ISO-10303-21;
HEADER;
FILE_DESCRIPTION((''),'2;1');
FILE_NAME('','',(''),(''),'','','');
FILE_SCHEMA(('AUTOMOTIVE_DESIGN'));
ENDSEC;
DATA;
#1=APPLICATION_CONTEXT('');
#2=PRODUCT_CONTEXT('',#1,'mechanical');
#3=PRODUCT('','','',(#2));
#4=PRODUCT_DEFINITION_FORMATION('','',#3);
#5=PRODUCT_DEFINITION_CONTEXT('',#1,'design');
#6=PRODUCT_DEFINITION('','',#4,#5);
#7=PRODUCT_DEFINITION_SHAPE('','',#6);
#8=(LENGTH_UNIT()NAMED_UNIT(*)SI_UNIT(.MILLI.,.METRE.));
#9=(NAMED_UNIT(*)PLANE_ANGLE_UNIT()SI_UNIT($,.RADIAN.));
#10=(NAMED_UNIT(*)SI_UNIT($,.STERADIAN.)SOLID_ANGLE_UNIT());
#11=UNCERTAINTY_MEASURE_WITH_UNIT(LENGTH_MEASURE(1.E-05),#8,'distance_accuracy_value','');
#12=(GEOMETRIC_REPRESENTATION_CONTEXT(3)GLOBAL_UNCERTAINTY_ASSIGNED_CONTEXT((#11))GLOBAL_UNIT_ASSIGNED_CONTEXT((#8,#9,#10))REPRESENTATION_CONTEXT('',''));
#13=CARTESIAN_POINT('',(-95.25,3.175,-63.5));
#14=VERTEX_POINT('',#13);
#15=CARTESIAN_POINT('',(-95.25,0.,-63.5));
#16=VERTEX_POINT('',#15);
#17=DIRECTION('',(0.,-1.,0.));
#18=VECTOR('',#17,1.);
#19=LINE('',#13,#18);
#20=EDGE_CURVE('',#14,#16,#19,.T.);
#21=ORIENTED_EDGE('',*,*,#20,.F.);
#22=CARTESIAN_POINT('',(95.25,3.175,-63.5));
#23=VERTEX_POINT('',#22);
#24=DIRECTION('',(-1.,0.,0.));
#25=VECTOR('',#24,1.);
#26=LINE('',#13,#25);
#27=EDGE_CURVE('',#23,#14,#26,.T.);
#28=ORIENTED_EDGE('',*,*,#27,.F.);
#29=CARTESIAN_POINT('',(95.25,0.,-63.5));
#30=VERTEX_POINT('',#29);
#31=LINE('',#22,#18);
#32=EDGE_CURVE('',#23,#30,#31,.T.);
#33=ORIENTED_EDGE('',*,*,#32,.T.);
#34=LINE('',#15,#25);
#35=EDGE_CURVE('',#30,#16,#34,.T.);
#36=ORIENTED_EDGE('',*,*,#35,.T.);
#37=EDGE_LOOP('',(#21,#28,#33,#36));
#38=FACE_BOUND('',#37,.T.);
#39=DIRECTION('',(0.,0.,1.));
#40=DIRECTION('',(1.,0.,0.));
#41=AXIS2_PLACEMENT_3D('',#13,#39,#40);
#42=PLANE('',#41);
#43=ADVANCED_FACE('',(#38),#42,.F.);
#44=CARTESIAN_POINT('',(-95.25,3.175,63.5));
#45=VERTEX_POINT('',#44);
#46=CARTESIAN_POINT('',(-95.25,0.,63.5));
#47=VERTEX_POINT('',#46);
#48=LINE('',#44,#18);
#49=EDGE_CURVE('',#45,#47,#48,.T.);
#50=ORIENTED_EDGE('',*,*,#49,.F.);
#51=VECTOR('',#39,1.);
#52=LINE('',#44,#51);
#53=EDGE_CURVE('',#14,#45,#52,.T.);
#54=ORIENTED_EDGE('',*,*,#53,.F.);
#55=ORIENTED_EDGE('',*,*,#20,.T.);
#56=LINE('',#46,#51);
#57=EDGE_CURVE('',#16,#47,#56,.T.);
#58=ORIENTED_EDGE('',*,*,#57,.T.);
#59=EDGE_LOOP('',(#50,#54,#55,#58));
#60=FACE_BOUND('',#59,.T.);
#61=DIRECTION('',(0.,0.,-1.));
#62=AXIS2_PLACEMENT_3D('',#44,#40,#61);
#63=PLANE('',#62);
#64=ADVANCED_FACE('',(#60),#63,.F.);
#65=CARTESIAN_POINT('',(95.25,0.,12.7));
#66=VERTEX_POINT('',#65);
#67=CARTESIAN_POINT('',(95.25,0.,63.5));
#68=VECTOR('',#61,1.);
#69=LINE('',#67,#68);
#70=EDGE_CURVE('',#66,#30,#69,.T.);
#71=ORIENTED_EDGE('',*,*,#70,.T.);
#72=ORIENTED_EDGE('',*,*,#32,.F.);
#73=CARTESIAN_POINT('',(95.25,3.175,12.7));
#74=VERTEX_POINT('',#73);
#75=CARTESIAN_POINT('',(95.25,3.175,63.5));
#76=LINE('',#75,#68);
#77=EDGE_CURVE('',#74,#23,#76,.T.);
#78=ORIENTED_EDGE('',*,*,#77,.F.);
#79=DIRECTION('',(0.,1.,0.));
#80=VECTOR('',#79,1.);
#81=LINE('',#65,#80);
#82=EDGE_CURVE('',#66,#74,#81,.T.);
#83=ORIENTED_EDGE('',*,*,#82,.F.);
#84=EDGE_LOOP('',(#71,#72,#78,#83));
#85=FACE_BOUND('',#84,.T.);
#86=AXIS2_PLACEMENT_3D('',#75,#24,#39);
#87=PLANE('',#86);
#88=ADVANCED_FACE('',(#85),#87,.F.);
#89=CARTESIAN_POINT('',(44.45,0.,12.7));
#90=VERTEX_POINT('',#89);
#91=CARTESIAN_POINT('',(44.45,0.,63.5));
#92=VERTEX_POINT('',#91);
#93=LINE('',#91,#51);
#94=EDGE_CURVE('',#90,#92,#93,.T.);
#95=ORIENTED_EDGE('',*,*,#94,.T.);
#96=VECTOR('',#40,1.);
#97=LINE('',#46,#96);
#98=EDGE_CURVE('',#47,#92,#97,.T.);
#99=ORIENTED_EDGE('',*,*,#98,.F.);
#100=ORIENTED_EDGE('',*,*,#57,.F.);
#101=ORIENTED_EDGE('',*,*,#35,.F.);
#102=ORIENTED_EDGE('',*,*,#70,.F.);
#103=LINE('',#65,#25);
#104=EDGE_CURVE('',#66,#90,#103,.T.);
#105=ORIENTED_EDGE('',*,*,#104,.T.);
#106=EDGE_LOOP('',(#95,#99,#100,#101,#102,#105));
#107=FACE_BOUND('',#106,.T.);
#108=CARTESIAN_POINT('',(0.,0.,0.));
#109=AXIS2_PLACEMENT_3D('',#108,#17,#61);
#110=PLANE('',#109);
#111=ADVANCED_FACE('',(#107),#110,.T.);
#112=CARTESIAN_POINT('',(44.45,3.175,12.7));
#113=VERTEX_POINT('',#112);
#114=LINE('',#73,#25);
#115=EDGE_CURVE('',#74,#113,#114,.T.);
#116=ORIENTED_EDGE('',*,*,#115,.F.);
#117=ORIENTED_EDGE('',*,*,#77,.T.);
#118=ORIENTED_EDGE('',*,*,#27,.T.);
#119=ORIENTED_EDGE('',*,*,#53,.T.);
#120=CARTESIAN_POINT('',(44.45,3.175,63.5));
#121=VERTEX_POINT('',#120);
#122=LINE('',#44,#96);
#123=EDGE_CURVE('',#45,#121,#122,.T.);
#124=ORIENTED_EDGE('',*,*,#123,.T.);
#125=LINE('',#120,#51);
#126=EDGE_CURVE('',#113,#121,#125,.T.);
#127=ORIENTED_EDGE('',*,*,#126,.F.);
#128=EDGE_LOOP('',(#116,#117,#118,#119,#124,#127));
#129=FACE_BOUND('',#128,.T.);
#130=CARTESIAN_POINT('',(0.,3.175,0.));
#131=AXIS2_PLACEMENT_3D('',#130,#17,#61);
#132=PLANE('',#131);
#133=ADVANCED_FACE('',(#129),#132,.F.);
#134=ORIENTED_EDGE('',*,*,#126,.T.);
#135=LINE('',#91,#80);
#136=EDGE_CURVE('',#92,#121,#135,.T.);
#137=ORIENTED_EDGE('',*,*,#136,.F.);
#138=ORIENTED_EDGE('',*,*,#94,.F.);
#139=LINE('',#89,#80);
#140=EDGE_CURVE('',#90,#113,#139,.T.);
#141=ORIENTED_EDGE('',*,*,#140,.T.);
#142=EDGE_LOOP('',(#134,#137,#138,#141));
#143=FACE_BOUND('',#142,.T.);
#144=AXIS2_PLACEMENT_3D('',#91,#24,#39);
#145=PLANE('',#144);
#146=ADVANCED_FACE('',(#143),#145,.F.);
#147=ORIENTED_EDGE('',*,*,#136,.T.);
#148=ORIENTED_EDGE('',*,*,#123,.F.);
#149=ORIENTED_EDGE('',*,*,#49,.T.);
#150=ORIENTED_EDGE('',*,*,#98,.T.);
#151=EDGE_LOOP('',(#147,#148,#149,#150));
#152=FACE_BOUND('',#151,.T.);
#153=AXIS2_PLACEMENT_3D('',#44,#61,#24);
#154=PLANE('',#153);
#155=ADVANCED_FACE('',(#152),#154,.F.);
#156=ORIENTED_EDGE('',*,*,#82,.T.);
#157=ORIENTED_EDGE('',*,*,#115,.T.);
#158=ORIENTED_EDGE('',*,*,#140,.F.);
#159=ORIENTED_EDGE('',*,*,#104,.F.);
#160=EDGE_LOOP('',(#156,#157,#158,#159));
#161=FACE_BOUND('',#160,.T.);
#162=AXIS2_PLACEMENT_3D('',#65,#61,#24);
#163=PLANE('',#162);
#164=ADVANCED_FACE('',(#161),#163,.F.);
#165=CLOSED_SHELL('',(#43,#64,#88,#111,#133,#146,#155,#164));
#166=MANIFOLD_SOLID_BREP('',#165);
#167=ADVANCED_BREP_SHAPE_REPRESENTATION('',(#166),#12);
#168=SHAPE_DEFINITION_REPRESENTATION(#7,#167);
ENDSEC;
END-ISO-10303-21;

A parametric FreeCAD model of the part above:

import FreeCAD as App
import Part
import Sketcher

V = App.Vector
Q = App.Units.Quantity

doc = App.newDocument("Part")
body = doc.addObject("PartDesign::Body", "Body")

# Sketch on XZ plane
sketch1 = body.newObject("Sketcher::SketchObject", "Sketch")
sketch1.AttachmentSupport = (doc.getObject("XZ_Plane"), [""])
sketch1.MapMode = "FlatFace"
sketch1.addGeometry([
    Part.LineSegment(V(-95, -64, 0), V(-95, 64, 0)),
    Part.LineSegment(V(-95, 64, 0), V(95, 64, 0)),
    Part.LineSegment(V(95, 64, 0), V(95, -64, 0)),
    Part.LineSegment(V(95, -64, 0), V(-95, -64, 0)),
], False)
sketch1.addConstraint([
    Sketcher.Constraint("Coincident", 0, 2, 1, 1),
    Sketcher.Constraint("Coincident", 1, 2, 2, 1),
    Sketcher.Constraint("Coincident", 2, 2, 3, 1),
    Sketcher.Constraint("Coincident", 3, 2, 0, 1),
    Sketcher.Constraint("Vertical", 0),
    Sketcher.Constraint("Horizontal", 1),
    Sketcher.Constraint("Vertical", 2),
    Sketcher.Constraint("Horizontal", 3),
    Sketcher.Constraint("Symmetric", 0, 2, 2, 2, -1, 1),
    Sketcher.Constraint("DistanceY", 0, 1, 0, 2, Q("5 in")),
    Sketcher.Constraint("DistanceX", 1, 1, 1, 2, Q("7.5 in")),
])
pad1 = body.newObject("PartDesign::Pad", "Pad")
pad1.Profile = sketch1
pad1.Length = Q("0.125 in")
pad1.Reversed = True

# Sketch on XZ plane
sketch2 = body.newObject("Sketcher::SketchObject", "Sketch001")
sketch2.AttachmentSupport = (doc.getObject("XZ_Plane"), [""])
sketch2.MapMode = "FlatFace"
sketch2.AttachmentOffset = App.Placement(V(0, 0, -0.125 * 25.4), App.Rotation())
sketch2.addGeometry([
    Part.LineSegment(V(44, 13, 0), V(44, 64, 0)),
    Part.LineSegment(V(44, 64, 0), V(95, 64, 0)),
    Part.LineSegment(V(95, 64, 0), V(95, 13, 0)),
    Part.LineSegment(V(95, 13, 0), V(44, 13, 0)),
], False)
sketch2.addConstraint([
    Sketcher.Constraint("Coincident", 0, 2, 1, 1),
    Sketcher.Constraint("Coincident", 1, 2, 2, 1),
    Sketcher.Constraint("Coincident", 2, 2, 3, 1),
    Sketcher.Constraint("Coincident", 3, 2, 0, 1),
    Sketcher.Constraint("Vertical", 0),
    Sketcher.Constraint("Horizontal", 1),
    Sketcher.Constraint("Vertical", 2),
    Sketcher.Constraint("Horizontal", 3),
    Sketcher.Constraint("Equal", 3, 0),
    Sketcher.Constraint("DistanceX", 1, 1, 1, 2, Q("2 in")),
    Sketcher.Constraint("DistanceY", -1, 1, 0, 2, Q("2.5 in")),
    Sketcher.Constraint("DistanceX", -1, 1, 0, 2, Q("1.75 in")),
])
pocket1 = body.newObject("PartDesign::Pocket", "Pocket")
pocket1.Profile = sketch2
pocket1.Type = "ThroughAll"
pocket1.Reversed = True

doc.recompute()
